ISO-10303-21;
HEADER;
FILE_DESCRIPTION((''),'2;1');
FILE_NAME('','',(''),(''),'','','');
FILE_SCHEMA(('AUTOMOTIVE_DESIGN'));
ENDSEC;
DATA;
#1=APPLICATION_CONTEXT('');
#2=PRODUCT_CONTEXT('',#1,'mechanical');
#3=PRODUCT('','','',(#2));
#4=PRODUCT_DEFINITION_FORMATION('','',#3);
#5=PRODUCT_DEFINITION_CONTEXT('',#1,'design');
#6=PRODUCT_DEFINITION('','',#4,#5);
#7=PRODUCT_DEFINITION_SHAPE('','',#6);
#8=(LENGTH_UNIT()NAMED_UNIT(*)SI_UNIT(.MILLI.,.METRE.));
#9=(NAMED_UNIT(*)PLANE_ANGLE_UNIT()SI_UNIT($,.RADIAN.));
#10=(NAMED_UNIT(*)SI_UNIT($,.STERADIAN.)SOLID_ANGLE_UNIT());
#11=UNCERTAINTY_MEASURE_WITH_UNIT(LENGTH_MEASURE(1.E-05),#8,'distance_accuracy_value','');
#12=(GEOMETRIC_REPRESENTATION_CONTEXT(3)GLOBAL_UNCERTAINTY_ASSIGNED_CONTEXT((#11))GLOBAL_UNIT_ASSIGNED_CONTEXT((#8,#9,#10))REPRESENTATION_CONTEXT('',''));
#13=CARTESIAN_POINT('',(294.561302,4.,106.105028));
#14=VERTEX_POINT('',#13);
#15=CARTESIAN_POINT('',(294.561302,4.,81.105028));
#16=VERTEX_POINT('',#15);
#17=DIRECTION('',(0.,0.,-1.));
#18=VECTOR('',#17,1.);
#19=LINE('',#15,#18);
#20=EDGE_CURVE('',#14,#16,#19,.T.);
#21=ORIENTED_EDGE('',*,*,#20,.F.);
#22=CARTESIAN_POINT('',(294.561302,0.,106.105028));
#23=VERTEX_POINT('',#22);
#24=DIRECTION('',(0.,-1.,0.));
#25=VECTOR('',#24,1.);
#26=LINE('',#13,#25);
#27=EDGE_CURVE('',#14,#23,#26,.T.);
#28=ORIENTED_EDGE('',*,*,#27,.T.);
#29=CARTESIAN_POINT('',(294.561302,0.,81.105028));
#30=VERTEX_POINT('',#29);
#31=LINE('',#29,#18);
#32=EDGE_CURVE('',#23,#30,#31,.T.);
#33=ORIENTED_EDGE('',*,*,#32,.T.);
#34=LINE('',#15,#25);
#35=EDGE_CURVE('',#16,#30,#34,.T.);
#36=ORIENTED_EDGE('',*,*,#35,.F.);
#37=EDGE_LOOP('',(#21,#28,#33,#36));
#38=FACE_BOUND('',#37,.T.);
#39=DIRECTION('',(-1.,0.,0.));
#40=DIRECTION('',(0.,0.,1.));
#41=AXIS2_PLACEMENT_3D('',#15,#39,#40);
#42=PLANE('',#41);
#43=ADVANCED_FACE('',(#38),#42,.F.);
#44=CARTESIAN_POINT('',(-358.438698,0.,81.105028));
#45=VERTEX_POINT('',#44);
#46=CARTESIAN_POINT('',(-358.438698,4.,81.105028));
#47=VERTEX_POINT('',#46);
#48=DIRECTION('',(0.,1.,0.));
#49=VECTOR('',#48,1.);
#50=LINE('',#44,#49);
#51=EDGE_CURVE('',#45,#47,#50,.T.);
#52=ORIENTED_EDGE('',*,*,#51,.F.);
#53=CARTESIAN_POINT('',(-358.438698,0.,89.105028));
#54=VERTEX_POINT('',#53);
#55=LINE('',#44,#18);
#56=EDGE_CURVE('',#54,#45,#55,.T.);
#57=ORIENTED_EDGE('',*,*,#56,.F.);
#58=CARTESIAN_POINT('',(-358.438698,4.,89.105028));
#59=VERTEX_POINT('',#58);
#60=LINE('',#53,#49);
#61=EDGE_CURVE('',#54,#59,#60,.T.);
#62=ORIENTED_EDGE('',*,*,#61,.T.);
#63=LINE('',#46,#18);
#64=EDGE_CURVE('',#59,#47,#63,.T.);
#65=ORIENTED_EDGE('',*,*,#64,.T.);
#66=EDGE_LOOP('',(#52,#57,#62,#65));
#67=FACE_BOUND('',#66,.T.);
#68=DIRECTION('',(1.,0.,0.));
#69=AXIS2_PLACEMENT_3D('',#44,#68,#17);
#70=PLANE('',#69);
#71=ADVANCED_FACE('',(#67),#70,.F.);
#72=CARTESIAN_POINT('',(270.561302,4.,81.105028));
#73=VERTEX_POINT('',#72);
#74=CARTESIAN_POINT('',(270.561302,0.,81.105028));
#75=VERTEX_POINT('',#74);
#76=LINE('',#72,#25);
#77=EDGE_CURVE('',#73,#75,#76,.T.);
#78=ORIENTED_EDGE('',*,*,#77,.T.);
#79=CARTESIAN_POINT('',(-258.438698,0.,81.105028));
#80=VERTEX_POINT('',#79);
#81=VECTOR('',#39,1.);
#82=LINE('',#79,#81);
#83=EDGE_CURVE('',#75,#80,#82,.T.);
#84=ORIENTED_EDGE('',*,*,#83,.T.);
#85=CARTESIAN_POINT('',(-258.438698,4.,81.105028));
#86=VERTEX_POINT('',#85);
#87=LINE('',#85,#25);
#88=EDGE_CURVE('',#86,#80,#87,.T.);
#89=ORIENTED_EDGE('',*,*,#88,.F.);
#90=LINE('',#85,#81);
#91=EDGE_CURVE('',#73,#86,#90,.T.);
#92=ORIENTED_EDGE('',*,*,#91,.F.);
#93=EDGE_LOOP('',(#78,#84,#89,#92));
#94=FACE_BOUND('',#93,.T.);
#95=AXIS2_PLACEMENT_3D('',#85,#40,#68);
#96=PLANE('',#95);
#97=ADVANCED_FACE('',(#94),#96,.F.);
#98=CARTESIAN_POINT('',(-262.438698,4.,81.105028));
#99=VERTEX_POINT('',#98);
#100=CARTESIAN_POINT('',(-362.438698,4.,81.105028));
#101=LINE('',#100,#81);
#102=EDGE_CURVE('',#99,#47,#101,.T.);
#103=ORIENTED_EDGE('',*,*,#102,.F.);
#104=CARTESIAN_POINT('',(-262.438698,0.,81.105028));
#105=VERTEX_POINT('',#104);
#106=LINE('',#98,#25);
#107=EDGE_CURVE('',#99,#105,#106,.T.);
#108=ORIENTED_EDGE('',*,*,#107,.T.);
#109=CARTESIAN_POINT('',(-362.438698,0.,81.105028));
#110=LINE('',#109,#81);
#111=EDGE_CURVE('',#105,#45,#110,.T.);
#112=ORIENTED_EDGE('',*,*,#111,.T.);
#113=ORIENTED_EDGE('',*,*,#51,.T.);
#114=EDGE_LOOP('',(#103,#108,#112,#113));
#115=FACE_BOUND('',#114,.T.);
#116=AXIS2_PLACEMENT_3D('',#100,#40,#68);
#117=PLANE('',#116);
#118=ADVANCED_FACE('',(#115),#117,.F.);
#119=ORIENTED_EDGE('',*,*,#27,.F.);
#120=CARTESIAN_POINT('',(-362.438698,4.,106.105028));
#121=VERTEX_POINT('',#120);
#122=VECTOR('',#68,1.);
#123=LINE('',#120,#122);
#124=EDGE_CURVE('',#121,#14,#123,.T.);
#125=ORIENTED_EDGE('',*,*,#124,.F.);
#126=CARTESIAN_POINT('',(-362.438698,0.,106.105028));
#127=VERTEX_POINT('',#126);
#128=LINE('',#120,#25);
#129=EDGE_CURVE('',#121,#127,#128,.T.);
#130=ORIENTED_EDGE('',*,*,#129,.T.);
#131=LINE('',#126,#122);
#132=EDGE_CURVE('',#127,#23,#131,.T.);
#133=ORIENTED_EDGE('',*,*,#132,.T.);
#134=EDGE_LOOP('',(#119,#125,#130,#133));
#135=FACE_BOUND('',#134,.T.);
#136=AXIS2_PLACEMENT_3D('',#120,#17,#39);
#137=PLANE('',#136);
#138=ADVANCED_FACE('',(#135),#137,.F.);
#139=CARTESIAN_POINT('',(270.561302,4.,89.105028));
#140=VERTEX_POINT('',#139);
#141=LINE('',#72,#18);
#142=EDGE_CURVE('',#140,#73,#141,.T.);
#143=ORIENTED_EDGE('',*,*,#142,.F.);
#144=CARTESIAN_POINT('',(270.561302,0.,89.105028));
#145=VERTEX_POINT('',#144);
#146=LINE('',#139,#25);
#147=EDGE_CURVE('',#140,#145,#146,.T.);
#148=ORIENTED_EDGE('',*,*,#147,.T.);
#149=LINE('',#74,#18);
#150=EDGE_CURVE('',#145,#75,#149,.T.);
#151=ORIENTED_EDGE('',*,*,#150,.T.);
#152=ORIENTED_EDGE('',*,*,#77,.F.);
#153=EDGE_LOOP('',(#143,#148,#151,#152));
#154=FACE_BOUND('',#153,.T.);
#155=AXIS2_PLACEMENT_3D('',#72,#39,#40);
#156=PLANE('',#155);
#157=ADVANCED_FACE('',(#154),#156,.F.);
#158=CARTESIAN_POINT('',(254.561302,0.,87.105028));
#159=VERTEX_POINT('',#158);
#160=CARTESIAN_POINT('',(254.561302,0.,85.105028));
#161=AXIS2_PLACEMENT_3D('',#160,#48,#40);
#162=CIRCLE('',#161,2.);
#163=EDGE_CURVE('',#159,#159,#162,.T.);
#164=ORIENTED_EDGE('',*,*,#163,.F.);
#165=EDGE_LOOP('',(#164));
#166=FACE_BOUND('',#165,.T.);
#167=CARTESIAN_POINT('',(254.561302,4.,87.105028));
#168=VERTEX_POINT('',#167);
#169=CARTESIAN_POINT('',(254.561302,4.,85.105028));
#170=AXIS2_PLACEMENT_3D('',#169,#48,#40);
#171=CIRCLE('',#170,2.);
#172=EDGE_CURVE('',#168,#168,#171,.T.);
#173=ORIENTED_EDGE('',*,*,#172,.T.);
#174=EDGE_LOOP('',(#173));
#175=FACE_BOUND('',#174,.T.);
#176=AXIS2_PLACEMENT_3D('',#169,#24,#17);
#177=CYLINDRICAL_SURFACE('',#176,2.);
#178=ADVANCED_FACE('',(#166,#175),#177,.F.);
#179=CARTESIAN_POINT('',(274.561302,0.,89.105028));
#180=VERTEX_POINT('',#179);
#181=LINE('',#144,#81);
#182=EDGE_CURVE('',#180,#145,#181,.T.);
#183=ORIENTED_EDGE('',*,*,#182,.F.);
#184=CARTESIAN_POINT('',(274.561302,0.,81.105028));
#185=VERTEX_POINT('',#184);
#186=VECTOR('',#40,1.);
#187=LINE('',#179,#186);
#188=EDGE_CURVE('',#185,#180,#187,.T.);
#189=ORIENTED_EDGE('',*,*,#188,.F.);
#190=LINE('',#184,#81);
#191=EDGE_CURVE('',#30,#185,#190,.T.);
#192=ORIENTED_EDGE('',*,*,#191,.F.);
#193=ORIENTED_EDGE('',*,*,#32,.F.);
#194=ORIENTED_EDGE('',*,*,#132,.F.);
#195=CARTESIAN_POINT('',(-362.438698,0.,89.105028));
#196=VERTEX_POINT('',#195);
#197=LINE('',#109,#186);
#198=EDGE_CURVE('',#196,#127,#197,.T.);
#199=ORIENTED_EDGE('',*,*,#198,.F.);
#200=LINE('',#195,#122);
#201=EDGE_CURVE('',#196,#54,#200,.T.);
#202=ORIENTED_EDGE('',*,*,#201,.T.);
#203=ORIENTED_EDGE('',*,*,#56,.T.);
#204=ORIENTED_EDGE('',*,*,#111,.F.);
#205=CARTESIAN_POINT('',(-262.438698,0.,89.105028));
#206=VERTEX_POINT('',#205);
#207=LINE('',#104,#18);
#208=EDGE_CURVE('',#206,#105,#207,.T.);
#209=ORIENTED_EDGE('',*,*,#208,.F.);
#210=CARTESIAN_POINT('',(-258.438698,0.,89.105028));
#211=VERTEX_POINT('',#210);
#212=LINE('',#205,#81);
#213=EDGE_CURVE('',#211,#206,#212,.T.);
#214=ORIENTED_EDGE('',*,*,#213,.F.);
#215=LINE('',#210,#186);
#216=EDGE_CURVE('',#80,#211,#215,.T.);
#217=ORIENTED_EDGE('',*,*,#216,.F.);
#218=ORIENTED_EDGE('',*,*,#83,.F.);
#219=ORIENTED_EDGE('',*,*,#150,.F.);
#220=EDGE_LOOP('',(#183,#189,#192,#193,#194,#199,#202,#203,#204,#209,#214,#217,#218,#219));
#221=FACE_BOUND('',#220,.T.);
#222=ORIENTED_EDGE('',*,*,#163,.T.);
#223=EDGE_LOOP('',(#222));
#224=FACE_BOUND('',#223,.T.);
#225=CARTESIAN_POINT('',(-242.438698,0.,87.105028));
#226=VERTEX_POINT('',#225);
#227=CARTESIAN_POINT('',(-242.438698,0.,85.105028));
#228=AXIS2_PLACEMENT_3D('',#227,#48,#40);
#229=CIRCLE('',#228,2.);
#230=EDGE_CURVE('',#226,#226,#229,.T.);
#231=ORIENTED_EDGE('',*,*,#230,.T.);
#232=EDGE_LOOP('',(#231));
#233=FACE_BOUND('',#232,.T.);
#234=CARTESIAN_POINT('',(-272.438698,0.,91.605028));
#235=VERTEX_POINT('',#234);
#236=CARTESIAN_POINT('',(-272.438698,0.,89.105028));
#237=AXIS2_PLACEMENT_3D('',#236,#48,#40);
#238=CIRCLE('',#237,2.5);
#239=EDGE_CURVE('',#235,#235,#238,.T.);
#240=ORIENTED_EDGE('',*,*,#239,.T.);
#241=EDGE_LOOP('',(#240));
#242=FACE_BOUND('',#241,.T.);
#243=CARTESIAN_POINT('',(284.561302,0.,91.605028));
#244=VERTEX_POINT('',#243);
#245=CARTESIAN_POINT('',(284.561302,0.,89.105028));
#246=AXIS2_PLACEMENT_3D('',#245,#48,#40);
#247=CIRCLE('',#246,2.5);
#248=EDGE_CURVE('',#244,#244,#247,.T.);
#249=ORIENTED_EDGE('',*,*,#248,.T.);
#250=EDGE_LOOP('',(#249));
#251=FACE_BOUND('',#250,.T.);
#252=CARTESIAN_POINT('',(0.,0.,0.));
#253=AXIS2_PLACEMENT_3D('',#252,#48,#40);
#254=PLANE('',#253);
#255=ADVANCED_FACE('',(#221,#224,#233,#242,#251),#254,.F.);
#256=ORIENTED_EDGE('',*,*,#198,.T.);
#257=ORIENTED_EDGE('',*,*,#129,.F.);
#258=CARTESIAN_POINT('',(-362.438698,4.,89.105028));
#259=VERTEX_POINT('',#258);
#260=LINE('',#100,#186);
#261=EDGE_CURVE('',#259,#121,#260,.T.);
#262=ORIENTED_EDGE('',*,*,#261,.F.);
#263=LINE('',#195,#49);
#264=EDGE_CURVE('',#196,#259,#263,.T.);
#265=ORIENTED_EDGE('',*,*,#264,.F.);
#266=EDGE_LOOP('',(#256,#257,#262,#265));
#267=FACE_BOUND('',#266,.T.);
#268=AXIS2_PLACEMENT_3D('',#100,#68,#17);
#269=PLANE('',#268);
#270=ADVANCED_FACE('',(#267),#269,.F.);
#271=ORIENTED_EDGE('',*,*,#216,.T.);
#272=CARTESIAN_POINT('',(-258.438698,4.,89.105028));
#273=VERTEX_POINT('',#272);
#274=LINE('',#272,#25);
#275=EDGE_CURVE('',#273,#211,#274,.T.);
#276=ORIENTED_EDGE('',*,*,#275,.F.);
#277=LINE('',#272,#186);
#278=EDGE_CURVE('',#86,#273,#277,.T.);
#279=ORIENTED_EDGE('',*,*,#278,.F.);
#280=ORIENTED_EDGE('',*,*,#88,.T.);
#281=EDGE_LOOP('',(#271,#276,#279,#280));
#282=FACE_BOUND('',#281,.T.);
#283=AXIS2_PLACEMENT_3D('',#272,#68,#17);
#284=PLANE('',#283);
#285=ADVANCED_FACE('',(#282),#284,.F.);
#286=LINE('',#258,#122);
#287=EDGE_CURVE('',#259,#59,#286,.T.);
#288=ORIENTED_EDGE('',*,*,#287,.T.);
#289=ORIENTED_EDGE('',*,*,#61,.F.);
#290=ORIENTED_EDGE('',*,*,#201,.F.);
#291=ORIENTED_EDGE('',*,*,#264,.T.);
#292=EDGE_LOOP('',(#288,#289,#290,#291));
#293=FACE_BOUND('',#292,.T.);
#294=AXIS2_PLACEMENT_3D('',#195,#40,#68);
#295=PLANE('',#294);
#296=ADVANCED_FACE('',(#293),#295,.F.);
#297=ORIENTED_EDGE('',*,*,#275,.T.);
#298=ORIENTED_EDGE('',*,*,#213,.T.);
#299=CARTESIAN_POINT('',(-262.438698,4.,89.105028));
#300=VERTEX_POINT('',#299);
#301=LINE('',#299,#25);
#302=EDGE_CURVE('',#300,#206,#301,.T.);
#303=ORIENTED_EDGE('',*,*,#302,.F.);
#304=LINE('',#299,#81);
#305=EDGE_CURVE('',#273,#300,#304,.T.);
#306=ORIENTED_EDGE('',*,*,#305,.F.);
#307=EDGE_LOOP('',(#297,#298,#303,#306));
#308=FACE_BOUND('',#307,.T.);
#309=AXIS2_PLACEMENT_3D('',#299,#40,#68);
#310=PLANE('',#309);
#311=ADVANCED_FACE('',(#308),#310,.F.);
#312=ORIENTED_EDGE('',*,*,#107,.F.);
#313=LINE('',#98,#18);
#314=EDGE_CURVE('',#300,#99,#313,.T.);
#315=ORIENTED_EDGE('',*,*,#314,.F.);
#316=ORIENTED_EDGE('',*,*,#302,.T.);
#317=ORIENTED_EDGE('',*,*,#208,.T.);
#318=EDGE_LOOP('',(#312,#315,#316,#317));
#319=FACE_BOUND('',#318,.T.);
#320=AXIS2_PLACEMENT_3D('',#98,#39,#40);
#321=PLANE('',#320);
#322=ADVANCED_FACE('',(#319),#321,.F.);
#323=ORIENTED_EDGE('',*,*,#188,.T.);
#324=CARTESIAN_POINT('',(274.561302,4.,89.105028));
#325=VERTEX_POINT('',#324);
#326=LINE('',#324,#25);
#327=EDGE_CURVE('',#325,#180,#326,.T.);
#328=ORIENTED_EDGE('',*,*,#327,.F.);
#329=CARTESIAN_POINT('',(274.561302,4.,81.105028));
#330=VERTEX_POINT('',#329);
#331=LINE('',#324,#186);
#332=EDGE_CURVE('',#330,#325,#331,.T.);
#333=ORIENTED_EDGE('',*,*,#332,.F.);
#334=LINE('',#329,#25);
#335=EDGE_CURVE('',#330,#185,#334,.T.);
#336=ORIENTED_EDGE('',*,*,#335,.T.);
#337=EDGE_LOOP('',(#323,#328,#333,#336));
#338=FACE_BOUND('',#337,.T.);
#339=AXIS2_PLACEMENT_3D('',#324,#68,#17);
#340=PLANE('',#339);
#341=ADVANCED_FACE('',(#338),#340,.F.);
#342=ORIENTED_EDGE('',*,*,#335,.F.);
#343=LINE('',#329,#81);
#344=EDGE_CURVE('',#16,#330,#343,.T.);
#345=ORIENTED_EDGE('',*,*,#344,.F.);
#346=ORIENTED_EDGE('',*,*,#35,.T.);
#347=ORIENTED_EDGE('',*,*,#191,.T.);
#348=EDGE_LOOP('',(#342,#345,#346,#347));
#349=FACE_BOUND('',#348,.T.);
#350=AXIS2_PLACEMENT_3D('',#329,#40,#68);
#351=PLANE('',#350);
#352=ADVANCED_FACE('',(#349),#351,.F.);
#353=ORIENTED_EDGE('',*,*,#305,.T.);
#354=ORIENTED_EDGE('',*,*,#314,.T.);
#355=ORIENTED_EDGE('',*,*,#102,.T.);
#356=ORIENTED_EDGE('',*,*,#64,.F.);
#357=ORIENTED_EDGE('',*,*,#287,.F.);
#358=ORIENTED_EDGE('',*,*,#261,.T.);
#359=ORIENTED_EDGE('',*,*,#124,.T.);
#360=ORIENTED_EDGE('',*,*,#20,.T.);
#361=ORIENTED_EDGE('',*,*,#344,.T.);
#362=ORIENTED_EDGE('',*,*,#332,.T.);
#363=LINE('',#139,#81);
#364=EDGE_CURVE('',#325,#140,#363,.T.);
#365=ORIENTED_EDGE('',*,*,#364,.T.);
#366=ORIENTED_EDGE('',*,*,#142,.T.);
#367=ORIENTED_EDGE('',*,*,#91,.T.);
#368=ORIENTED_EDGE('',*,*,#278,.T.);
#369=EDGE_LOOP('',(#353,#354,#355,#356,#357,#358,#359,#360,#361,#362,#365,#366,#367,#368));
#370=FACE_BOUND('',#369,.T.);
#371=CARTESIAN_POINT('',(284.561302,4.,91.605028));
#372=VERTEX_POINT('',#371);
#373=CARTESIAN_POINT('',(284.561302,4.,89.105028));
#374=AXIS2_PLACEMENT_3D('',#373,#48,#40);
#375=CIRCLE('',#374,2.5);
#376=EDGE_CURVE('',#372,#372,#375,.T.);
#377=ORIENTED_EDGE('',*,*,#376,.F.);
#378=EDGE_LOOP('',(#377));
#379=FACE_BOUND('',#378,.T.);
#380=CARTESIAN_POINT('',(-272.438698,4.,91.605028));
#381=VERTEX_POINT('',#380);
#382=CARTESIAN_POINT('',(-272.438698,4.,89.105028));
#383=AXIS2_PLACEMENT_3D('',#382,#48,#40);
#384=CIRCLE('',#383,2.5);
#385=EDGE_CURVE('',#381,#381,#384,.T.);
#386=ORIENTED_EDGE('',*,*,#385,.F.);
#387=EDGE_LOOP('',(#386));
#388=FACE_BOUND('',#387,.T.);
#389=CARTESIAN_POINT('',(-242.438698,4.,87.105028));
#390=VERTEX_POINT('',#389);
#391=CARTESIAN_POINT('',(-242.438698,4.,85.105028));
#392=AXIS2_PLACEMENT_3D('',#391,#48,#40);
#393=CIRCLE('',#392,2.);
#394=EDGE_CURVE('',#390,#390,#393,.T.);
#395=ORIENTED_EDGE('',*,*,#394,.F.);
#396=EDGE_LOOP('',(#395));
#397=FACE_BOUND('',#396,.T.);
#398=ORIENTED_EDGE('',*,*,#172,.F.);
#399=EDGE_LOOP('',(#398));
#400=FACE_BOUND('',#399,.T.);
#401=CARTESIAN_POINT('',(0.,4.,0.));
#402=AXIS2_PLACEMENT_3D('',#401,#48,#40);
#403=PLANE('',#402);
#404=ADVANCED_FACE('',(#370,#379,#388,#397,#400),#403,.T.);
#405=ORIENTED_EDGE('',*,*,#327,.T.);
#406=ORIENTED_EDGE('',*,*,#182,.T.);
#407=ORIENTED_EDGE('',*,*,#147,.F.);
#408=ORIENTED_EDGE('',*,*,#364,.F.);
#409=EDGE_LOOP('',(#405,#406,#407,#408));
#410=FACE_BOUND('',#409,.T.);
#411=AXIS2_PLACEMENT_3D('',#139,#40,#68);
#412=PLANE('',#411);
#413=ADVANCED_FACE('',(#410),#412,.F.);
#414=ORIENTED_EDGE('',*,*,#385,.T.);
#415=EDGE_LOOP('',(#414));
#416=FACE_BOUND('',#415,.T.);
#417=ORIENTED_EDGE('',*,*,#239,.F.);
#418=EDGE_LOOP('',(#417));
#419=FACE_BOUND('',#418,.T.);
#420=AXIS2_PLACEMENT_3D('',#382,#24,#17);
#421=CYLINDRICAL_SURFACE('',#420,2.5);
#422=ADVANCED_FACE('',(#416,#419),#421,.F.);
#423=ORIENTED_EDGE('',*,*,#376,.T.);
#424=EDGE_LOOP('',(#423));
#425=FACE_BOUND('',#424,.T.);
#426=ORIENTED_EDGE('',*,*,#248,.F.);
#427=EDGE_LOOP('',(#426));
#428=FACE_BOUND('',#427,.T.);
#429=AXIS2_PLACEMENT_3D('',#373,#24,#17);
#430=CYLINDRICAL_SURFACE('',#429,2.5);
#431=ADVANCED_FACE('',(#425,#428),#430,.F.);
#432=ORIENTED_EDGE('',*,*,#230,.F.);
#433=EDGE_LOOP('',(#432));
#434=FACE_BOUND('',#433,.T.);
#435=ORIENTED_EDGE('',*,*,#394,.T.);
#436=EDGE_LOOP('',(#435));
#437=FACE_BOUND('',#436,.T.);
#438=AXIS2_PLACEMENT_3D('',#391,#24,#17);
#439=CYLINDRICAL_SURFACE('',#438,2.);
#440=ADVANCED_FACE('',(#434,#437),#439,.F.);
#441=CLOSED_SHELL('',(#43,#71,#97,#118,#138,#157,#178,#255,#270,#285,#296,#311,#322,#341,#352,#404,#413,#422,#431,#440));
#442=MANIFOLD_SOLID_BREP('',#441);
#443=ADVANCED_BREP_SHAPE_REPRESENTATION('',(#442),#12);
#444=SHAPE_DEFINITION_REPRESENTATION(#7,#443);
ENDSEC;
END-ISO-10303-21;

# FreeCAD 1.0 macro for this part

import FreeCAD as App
import Part
import Sketcher

V = App.Vector
Q = App.Units.Quantity

doc = App.newDocument("Part")
body = doc.addObject("PartDesign::Body", "Body")

sketch1 = doc.addObject("Sketcher::SketchObject", "Sketch")
body.addObject(sketch1)
sketch1.AttachmentSupport = (doc.XZ_Plane, [""])
sketch1.MapMode = "FlatFace"
sketch1.addGeometry([
    Part.LineSegment(V(-262.4, 81.1, 0), V(-362.4, 81.1, 0)),
    Part.LineSegment(V(-362.4, 81.1, 0), V(-362.4, 106.1, 0)),
    Part.LineSegment(V(-362.4, 106.1, 0), V(294.6, 106.1, 0)),
    Part.LineSegment(V(294.6, 106.1, 0), V(294.6, 81.1, 0)),
    Part.LineSegment(V(294.6, 81.1, 0), V(274.6, 81.1, 0)),
    Part.LineSegment(V(274.6, 81.1, 0), V(274.6, 89.1, 0)),
    Part.LineSegment(V(274.6, 89.1, 0), V(270.6, 89.1, 0)),
    Part.LineSegment(V(270.6, 89.1, 0), V(270.6, 81.1, 0)),
    Part.LineSegment(V(270.6, 81.1, 0), V(-258.4, 81.1, 0)),
    Part.LineSegment(V(-258.4, 81.1, 0), V(-258.4, 89.1, 0)),
    Part.LineSegment(V(-258.4, 89.1, 0), V(-262.4, 89.1, 0)),
    Part.LineSegment(V(-262.4, 89.1, 0), V(-262.4, 81.1, 0)),
    Part.Circle(V(284.6, 89.1, 0), V(0, 0, 1), 2.5),
    Part.Circle(V(-272.4, 89.1, 0), V(0, 0, 1), 2.5),
    Part.Circle(V(254.6, 85.1, 0), V(0, 0, 1), 2),
    Part.Circle(V(-242.4, 85.1, 0), V(0, 0, 1), 2),
], False)
sketch1.addConstraint([
    Sketcher.Constraint("Coincident", 0, 2, 1, 1),
    Sketcher.Constraint("Coincident", 1, 2, 2, 1),
    Sketcher.Constraint("Coincident", 2, 2, 3, 1),
    Sketcher.Constraint("Coincident", 3, 2, 4, 1),
    Sketcher.Constraint("Coincident", 4, 2, 5, 1),
    Sketcher.Constraint("Coincident", 5, 2, 6, 1),
    Sketcher.Constraint("Coincident", 6, 2, 7, 1),
    Sketcher.Constraint("Coincident", 7, 2, 8, 1),
    Sketcher.Constraint("Coincident", 8, 2, 9, 1),
    Sketcher.Constraint("Coincident", 9, 2, 10, 1),
    Sketcher.Constraint("Coincident", 10, 2, 11, 1),
    Sketcher.Constraint("Coincident", 11, 2, 0, 1),
    Sketcher.Constraint("Horizontal", 0),
    Sketcher.Constraint("Vertical", 1),
    Sketcher.Constraint("Horizontal", 2),
    Sketcher.Constraint("Vertical", 3),
    Sketcher.Constraint("Horizontal", 4),
    Sketcher.Constraint("Vertical", 5),
    Sketcher.Constraint("Horizontal", 6),
    Sketcher.Constraint("Vertical", 7),
    Sketcher.Constraint("Horizontal", 8),
    Sketcher.Constraint("Vertical", 9),
    Sketcher.Constraint("Horizontal", 10),
    Sketcher.Constraint("Vertical", 11),
    Sketcher.Constraint("Equal", 12, 13),
    Sketcher.Constraint("Equal", 14, 15),
    Sketcher.Constraint("Horizontal", 12, 3, 13, 3),
    Sketcher.Constraint("Horizontal", 14, 3, 15, 3),
    Sketcher.Constraint("Horizontal", 0, 2, 3, 2),
    Sketcher.Constraint("Horizontal", 13, 3, 5, 2),
    Sketcher.Constraint("Horizontal", 4, 2, 7, 2),
    Sketcher.Constraint("Horizontal", 6, 2, 9, 2),
    Sketcher.Constraint("Equal", 6, 10),
    Sketcher.Constraint("Diameter", 12, Q("5 mm")),
    Sketcher.Constraint("Diameter", 14, Q("4 mm")),
    Sketcher.Constraint("DistanceX", 0, 2, 0, 1, Q("100 mm")),
    Sketcher.Constraint("DistanceX", 2, 1, 2, 2, Q("657 mm")),
    Sketcher.Constraint("DistanceX", 4, 2, 4, 1, Q("20 mm")),
    Sketcher.Constraint("DistanceX", 6, 2, 6, 1, Q("4 mm")),
    Sketcher.Constraint("DistanceY", 1, 1, 1, 2, Q("25 mm")),
    Sketcher.Constraint("DistanceY", 5, 1, 5, 2, Q("8 mm")),
    Sketcher.Constraint("DistanceX", 13, 3, 12, 3, Q("557 mm")),
    Sketcher.Constraint("DistanceX", 14, 3, 12, 3, Q("30 mm")),
    Sketcher.Constraint("DistanceY", 14, 3, 12, 3, Q("4 mm")),
    Sketcher.Constraint("DistanceX", 13, 3, 15, 3, Q("30 mm")),
    Sketcher.Constraint("DistanceX", 0, 2, 13, 3, Q("90 mm")),
    Sketcher.Constraint("DistanceX", -1, 1, 12, 3, Q("284.561302 mm")),
    Sketcher.Constraint("DistanceY", -1, 1, 12, 3, Q("89.105028 mm")),
])
pad1 = doc.addObject("PartDesign::Pad", "Pad")
body.addObject(pad1)
pad1.Profile = sketch1
pad1.Length = 4
pad1.Reversed = True

sketch2 = doc.addObject("Sketcher::SketchObject", "Sketch001")
body.addObject(sketch2)
sketch2.AttachmentSupport = (doc.XZ_Plane, [""])
sketch2.MapMode = "FlatFace"
sketch2.AttachmentOffset = App.Placement(V(0, 0, -4), App.Rotation())
sketch2.addGeometry([
    Part.LineSegment(V(-362.4, 81.1, 0), V(-362.4, 89.1, 0)),
    Part.LineSegment(V(-362.4, 89.1, 0), V(-358.4, 89.1, 0)),
    Part.LineSegment(V(-358.4, 89.1, 0), V(-358.4, 81.1, 0)),
    Part.LineSegment(V(-358.4, 81.1, 0), V(-362.4, 81.1, 0)),
], False)
sketch2.addConstraint([
    Sketcher.Constraint("Coincident", 0, 2, 1, 1),
    Sketcher.Constraint("Coincident", 1, 2, 2, 1),
    Sketcher.Constraint("Coincident", 2, 2, 3, 1),
    Sketcher.Constraint("Coincident", 3, 2, 0, 1),
    Sketcher.Constraint("Vertical", 0),
    Sketcher.Constraint("Horizontal", 1),
    Sketcher.Constraint("Vertical", 2),
    Sketcher.Constraint("Horizontal", 3),
    Sketcher.Constraint("DistanceX", 1, 1, 1, 2, Q("4 mm")),
    Sketcher.Constraint("DistanceY", 0, 1, 0, 2, Q("8 mm")),
    Sketcher.Constraint("DistanceX", 0, 2, -1, 1, Q("362.438698 mm")),
    Sketcher.Constraint("DistanceY", -1, 1, 0, 2, Q("89.105028 mm")),
])
pocket1 = doc.addObject("PartDesign::Pocket", "Pocket")
body.addObject(pocket1)
pocket1.Profile = sketch2
pocket1.Length = 4
pocket1.Reversed = True

doc.recompute()
